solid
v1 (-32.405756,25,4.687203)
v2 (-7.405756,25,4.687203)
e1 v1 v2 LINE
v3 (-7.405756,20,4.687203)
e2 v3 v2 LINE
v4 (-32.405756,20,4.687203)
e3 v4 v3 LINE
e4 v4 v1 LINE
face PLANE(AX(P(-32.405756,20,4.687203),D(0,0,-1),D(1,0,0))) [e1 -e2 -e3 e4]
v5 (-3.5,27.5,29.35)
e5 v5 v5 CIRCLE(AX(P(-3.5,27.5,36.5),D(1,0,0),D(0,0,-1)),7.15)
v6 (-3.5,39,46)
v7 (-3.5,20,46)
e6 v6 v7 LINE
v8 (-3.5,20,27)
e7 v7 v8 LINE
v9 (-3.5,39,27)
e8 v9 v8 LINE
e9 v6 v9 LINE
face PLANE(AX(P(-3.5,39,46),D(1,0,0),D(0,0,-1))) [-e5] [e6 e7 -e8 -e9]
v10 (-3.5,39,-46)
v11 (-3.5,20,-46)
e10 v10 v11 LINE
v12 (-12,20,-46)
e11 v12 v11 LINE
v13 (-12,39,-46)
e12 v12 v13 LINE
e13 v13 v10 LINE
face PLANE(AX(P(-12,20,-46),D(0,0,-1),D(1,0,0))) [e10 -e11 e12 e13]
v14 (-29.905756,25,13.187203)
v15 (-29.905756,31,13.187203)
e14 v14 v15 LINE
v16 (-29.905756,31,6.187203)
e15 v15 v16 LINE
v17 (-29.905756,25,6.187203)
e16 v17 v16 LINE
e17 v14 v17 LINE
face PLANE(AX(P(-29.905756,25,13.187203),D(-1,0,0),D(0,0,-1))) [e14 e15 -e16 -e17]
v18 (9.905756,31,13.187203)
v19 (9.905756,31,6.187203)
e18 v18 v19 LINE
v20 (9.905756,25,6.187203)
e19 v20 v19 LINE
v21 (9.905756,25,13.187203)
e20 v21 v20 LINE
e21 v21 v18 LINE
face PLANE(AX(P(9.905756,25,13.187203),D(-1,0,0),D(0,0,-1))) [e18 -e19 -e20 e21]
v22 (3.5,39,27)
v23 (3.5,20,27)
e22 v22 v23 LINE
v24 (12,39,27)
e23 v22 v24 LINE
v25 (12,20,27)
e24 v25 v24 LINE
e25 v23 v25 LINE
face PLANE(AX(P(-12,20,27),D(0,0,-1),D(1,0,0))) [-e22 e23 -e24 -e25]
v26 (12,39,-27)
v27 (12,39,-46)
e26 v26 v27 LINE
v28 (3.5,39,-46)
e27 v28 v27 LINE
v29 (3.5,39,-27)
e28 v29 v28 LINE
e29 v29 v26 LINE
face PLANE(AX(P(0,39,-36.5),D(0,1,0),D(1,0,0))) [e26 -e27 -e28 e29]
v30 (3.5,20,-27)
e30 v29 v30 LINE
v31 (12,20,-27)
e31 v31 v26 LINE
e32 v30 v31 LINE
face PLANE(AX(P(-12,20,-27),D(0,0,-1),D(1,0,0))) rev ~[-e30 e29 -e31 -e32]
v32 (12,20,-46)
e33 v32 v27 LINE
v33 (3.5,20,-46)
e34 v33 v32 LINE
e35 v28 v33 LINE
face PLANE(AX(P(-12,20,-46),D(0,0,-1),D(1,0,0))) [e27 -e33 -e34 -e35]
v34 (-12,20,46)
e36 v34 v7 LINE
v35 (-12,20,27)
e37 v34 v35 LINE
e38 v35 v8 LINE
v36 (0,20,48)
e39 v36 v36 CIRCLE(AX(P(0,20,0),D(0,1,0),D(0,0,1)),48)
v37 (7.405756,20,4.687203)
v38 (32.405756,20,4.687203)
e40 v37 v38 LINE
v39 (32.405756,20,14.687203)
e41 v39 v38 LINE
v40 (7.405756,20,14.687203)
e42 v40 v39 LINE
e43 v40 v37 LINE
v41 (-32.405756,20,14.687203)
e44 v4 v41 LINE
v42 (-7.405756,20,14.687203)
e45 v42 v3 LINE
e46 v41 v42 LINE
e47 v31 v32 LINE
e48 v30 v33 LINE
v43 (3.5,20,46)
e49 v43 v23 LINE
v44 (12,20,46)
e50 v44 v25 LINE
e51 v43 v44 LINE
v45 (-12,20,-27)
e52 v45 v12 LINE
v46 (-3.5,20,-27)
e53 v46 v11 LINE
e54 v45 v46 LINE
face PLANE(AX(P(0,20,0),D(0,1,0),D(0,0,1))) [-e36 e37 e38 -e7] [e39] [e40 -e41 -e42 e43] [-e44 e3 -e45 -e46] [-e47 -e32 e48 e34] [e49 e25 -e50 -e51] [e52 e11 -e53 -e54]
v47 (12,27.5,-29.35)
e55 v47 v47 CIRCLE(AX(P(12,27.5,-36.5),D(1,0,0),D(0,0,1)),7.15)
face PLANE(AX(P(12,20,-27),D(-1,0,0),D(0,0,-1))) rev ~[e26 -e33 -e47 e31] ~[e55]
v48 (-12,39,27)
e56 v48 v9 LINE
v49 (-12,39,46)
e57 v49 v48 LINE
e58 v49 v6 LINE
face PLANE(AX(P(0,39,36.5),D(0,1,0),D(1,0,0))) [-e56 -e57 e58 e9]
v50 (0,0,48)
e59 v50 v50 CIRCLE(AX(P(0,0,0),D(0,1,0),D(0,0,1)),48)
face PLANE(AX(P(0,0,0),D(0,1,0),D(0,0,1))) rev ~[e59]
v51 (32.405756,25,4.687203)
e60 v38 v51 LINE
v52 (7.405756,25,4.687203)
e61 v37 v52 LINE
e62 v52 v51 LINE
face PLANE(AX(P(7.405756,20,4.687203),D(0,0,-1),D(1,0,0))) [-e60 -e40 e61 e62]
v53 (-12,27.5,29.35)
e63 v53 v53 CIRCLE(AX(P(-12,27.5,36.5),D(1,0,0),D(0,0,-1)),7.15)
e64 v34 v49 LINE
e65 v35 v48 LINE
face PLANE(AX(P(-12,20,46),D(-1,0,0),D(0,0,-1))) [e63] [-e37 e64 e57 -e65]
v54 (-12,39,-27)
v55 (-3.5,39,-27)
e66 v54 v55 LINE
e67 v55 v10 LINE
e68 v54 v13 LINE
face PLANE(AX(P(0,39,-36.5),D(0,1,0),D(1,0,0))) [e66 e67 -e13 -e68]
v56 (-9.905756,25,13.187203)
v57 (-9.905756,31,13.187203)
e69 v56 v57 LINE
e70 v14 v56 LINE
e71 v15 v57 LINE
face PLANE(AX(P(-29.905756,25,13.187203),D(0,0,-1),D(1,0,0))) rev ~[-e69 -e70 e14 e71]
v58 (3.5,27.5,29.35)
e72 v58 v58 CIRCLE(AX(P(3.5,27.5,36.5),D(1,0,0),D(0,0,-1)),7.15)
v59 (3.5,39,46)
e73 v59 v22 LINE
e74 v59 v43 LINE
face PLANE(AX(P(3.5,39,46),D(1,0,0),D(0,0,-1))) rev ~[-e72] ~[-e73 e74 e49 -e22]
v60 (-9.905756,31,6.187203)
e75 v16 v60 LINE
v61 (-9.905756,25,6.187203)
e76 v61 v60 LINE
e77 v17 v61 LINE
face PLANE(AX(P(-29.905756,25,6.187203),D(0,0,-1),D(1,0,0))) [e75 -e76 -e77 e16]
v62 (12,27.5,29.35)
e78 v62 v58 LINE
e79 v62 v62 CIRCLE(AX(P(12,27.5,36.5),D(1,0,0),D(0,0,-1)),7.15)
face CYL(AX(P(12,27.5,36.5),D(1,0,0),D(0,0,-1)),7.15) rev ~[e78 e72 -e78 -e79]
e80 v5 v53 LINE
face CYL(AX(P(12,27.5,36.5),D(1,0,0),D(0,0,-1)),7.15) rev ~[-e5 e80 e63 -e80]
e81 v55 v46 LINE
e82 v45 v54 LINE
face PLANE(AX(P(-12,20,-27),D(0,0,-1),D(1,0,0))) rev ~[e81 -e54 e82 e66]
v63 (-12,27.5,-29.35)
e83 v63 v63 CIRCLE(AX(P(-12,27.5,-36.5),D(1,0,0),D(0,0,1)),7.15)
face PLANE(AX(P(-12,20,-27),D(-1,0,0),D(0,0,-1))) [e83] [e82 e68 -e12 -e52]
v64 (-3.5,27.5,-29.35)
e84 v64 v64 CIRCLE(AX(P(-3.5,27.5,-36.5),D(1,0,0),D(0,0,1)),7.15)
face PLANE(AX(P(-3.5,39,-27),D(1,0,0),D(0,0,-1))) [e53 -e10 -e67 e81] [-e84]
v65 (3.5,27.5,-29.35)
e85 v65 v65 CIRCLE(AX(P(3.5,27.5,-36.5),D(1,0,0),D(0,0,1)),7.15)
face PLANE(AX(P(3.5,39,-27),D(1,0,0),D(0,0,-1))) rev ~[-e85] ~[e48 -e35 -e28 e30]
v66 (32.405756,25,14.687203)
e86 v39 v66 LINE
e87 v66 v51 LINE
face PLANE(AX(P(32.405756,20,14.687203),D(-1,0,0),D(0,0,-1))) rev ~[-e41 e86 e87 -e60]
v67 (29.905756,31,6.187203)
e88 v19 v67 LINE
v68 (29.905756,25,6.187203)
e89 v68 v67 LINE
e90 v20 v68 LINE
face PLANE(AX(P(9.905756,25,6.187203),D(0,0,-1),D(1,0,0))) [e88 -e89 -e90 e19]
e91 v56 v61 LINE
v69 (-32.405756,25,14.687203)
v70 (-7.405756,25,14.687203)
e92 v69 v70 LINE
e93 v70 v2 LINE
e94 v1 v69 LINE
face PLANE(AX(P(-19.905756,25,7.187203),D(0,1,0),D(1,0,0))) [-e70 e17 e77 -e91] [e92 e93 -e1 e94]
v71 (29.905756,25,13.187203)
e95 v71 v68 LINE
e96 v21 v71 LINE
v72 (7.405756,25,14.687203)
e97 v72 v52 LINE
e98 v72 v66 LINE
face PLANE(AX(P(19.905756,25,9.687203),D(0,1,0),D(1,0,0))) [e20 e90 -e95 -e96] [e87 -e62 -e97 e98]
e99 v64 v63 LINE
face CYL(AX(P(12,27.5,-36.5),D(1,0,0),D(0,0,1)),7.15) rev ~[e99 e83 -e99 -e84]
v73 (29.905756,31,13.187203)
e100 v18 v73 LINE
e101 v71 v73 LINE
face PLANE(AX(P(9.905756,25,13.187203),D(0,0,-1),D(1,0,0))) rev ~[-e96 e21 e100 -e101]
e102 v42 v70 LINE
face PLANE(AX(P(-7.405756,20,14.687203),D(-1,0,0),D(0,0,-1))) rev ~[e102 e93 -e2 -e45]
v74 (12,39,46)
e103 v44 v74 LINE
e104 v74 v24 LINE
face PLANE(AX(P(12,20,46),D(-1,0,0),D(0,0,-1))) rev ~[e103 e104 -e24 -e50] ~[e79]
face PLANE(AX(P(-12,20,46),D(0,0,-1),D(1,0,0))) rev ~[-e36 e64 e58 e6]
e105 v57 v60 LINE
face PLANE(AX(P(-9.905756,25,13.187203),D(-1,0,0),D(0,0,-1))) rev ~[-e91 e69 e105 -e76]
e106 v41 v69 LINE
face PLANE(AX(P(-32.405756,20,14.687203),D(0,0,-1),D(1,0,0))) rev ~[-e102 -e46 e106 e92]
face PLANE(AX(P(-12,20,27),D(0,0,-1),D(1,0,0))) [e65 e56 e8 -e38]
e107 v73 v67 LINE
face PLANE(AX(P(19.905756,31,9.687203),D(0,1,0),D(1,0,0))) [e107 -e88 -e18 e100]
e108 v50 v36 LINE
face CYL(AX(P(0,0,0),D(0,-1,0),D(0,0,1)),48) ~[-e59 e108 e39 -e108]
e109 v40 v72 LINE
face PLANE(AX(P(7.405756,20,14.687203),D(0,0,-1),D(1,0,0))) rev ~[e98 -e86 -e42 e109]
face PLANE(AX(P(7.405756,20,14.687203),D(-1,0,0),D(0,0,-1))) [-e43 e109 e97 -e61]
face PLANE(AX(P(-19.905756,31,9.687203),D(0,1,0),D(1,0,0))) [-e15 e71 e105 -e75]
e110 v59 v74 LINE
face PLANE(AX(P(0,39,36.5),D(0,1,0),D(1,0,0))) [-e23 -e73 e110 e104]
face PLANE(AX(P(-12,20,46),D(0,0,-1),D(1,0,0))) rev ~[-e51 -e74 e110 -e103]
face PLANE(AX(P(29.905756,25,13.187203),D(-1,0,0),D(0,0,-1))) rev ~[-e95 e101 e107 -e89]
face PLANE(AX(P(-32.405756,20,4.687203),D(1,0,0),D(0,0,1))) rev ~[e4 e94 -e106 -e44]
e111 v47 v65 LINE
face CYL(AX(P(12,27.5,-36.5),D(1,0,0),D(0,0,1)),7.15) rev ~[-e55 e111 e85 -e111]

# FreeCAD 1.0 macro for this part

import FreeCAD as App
import Part
import Sketcher

V = App.Vector


def add_polygon(sketch, points):
    """Adds a closed chain of lines whose ends are joined by coincident constraints."""
    first, n = sketch.GeometryCount, len(points)
    for a, b in zip(points, points[1:] + points[:1]):
        sketch.addGeometry(Part.LineSegment(App.Vector(*a, 0), App.Vector(*b, 0)), False)
    for i in range(n):
        sketch.addConstraint(Sketcher.Constraint("Coincident", first + i, 2, first + (i + 1) % n, 1))

doc = App.newDocument("Part")
body = doc.addObject("PartDesign::Body", "Body")

sketch1 = body.newObject("Sketcher::SketchObject", "Sketch")
sketch1.AttachmentSupport = (doc.getObject("XZ_Plane"), [""])
sketch1.MapMode = "FlatFace"
sketch1.addGeometry(Part.Circle(V(0, 0, 0), V(0, 0, 1), 48), False)
sketch1.addConstraint(Sketcher.Constraint("Coincident", 0, 3, -1, 1))
sketch1.addConstraint(Sketcher.Constraint("Diameter", 0, 96.0))
pad1 = body.newObject("PartDesign::Pad", "Pad")
pad1.Profile = sketch1
pad1.Length = 20
pad1.Reversed = True

sketch2 = body.newObject("Sketcher::SketchObject", "Sketch001")
sketch2.AttachmentSupport = (doc.getObject("XZ_Plane"), [""])
sketch2.MapMode = "FlatFace"
sketch2.AttachmentOffset = App.Placement(V(0, 0, -20), App.Rotation())
add_polygon(sketch2, [(-32, 5), (-32, 15), (-7, 15), (-7, 5)])
add_polygon(sketch2, [(7, 5), (7, 15), (32, 15), (32, 5)])
sketch2.addConstraint(Sketcher.Constraint("Vertical", 0))
sketch2.addConstraint(Sketcher.Constraint("Horizontal", 1))
sketch2.addConstraint(Sketcher.Constraint("Vertical", 2))
sketch2.addConstraint(Sketcher.Constraint("Horizontal", 3))
sketch2.addConstraint(Sketcher.Constraint("Vertical", 4))
sketch2.addConstraint(Sketcher.Constraint("Horizontal", 5))
sketch2.addConstraint(Sketcher.Constraint("Vertical", 6))
sketch2.addConstraint(Sketcher.Constraint("Horizontal", 7))
sketch2.addConstraint(Sketcher.Constraint("Symmetric", 1, 2, 4, 2, -2))
sketch2.addConstraint(Sketcher.Constraint("Symmetric", 3, 2, 6, 2, -2))
sketch2.addConstraint(Sketcher.Constraint("DistanceX", 1, 1, 1, 2, 25.0))
sketch2.addConstraint(Sketcher.Constraint("DistanceY", 0, 1, 0, 2, 10.0))
sketch2.addConstraint(Sketcher.Constraint("DistanceX", 0, 2, -1, 1, 32.405756))
sketch2.addConstraint(Sketcher.Constraint("DistanceY", -1, 1, 0, 2, 14.687203))
pad2 = body.newObject("PartDesign::Pad", "Pad001")
pad2.Profile = sketch2
pad2.Length = 5
pad2.Reversed = True

sketch3 = body.newObject("Sketcher::SketchObject", "Sketch002")
sketch3.AttachmentSupport = (doc.getObject("XZ_Plane"), [""])
sketch3.MapMode = "FlatFace"
sketch3.AttachmentOffset = App.Placement(V(0, 0, -25), App.Rotation())
add_polygon(sketch3, [(10, 6), (10, 13), (30, 13), (30, 6)])
add_polygon(sketch3, [(-30, 6), (-30, 13), (-10, 13), (-10, 6)])
sketch3.addConstraint(Sketcher.Constraint("Vertical", 0))
sketch3.addConstraint(Sketcher.Constraint("Horizontal", 1))
sketch3.addConstraint(Sketcher.Constraint("Vertical", 2))
sketch3.addConstraint(Sketcher.Constraint("Horizontal", 3))
sketch3.addConstraint(Sketcher.Constraint("Vertical", 4))
sketch3.addConstraint(Sketcher.Constraint("Horizontal", 5))
sketch3.addConstraint(Sketcher.Constraint("Vertical", 6))
sketch3.addConstraint(Sketcher.Constraint("Horizontal", 7))
sketch3.addConstraint(Sketcher.Constraint("Symmetric", 1, 2, 4, 2, -2))
sketch3.addConstraint(Sketcher.Constraint("Symmetric", 3, 2, 6, 2, -2))
sketch3.addConstraint(Sketcher.Constraint("DistanceX", 1, 1, 1, 2, 20.0))
sketch3.addConstraint(Sketcher.Constraint("DistanceY", 0, 1, 0, 2, 7.0))
sketch3.addConstraint(Sketcher.Constraint("DistanceX", -1, 1, 0, 2, 9.905756))
sketch3.addConstraint(Sketcher.Constraint("DistanceY", -1, 1, 0, 2, 13.187203))
pad3 = body.newObject("PartDesign::Pad", "Pad002")
pad3.Profile = sketch3
pad3.Length = 6
pad3.Reversed = True

sketch4 = body.newObject("Sketcher::SketchObject", "Sketch003")
sketch4.AttachmentSupport = (doc.getObject("XZ_Plane"), [""])
sketch4.MapMode = "FlatFace"
sketch4.AttachmentOffset = App.Placement(V(0, 0, -20), App.Rotation())
add_polygon(sketch4, [(-12, 27), (-12, 46), (12, 46), (12, 27)])
add_polygon(sketch4, [(-12, -46), (-12, -27), (12, -27), (12, -46)])
sketch4.addConstraint(Sketcher.Constraint("Vertical", 0))
sketch4.addConstraint(Sketcher.Constraint("Horizontal", 1))
sketch4.addConstraint(Sketcher.Constraint("Vertical", 2))
sketch4.addConstraint(Sketcher.Constraint("Horizontal", 3))
sketch4.addConstraint(Sketcher.Constraint("Vertical", 4))
sketch4.addConstraint(Sketcher.Constraint("Horizontal", 5))
sketch4.addConstraint(Sketcher.Constraint("Vertical", 6))
sketch4.addConstraint(Sketcher.Constraint("Horizontal", 7))
sketch4.addConstraint(Sketcher.Constraint("Symmetric", 2, 2, 4, 2, -1, 1))
sketch4.addConstraint(Sketcher.Constraint("Symmetric", 0, 2, 6, 2, -1, 1))
sketch4.addConstraint(Sketcher.Constraint("Vertical", 3, 2, 4, 2))
sketch4.addConstraint(Sketcher.Constraint("DistanceX", 1, 1, 1, 2, 24.0))
sketch4.addConstraint(Sketcher.Constraint("DistanceY", 0, 1, 0, 2, 19.0))
sketch4.addConstraint(Sketcher.Constraint("DistanceY", -1, 1, 0, 2, 46.0))
pad4 = body.newObject("PartDesign::Pad", "Pad003")
pad4.Profile = sketch4
pad4.Length = 19
pad4.Reversed = True

sketch5 = body.newObject("Sketcher::SketchObject", "Sketch004")
sketch5.AttachmentSupport = (doc.getObject("YZ_Plane"), [""])
sketch5.MapMode = "FlatFace"
sketch5.AttachmentOffset = App.Placement(V(0, 0, 12), App.Rotation())
sketch5.addGeometry(Part.Circle(V(28, 36, 0), V(0, 0, 1), 7), False)
sketch5.addGeometry(Part.Circle(V(28, -36, 0), V(0, 0, 1), 7), False)
sketch5.addConstraint(Sketcher.Constraint("Equal", 0, 1))
sketch5.addConstraint(Sketcher.Constraint("Symmetric", 0, 3, 1, 3, -1))
sketch5.addConstraint(Sketcher.Constraint("Diameter", 0, 14.3))
sketch5.addConstraint(Sketcher.Constraint("DistanceY", 1, 3, 0, 3, 73.0))
sketch5.addConstraint(Sketcher.Constraint("DistanceX", -1, 1, 0, 3, 27.5))
pocket1 = body.newObject("PartDesign::Pocket", "Pocket")
pocket1.Profile = sketch5
pocket1.Length = 28

sketch6 = body.newObject("Sketcher::SketchObject", "Sketch005")
sketch6.AttachmentSupport = (doc.getObject("XZ_Plane"), [""])
sketch6.MapMode = "FlatFace"
sketch6.AttachmentOffset = App.Placement(V(0, 0, -39), App.Rotation())
add_polygon(sketch6, [(-3.5, 27), (-3.5, 46), (3.5, 46), (3.5, 27)])
add_polygon(sketch6, [(-3.5, -46), (-3.5, -27), (3.5, -27), (3.5, -46)])
sketch6.addConstraint(Sketcher.Constraint("Vertical", 0))
sketch6.addConstraint(Sketcher.Constraint("Horizontal", 1))
sketch6.addConstraint(Sketcher.Constraint("Vertical", 2))
sketch6.addConstraint(Sketcher.Constraint("Horizontal", 3))
sketch6.addConstraint(Sketcher.Constraint("Vertical", 4))
sketch6.addConstraint(Sketcher.Constraint("Horizontal", 5))
sketch6.addConstraint(Sketcher.Constraint("Vertical", 6))
sketch6.addConstraint(Sketcher.Constraint("Horizontal", 7))
sketch6.addConstraint(Sketcher.Constraint("Symmetric", 2, 2, 4, 2, -1, 1))
sketch6.addConstraint(Sketcher.Constraint("Symmetric", 0, 2, 6, 2, -1, 1))
sketch6.addConstraint(Sketcher.Constraint("Vertical", 3, 2, 4, 2))
sketch6.addConstraint(Sketcher.Constraint("DistanceX", 1, 1, 1, 2, 7.0))
sketch6.addConstraint(Sketcher.Constraint("DistanceY", 0, 1, 0, 2, 19.0))
sketch6.addConstraint(Sketcher.Constraint("DistanceY", -1, 1, 0, 2, 46.0))
pocket2 = body.newObject("PartDesign::Pocket", "Pocket001")
pocket2.Profile = sketch6
pocket2.Length = 19
pocket2.Reversed = True

doc.recompute()
